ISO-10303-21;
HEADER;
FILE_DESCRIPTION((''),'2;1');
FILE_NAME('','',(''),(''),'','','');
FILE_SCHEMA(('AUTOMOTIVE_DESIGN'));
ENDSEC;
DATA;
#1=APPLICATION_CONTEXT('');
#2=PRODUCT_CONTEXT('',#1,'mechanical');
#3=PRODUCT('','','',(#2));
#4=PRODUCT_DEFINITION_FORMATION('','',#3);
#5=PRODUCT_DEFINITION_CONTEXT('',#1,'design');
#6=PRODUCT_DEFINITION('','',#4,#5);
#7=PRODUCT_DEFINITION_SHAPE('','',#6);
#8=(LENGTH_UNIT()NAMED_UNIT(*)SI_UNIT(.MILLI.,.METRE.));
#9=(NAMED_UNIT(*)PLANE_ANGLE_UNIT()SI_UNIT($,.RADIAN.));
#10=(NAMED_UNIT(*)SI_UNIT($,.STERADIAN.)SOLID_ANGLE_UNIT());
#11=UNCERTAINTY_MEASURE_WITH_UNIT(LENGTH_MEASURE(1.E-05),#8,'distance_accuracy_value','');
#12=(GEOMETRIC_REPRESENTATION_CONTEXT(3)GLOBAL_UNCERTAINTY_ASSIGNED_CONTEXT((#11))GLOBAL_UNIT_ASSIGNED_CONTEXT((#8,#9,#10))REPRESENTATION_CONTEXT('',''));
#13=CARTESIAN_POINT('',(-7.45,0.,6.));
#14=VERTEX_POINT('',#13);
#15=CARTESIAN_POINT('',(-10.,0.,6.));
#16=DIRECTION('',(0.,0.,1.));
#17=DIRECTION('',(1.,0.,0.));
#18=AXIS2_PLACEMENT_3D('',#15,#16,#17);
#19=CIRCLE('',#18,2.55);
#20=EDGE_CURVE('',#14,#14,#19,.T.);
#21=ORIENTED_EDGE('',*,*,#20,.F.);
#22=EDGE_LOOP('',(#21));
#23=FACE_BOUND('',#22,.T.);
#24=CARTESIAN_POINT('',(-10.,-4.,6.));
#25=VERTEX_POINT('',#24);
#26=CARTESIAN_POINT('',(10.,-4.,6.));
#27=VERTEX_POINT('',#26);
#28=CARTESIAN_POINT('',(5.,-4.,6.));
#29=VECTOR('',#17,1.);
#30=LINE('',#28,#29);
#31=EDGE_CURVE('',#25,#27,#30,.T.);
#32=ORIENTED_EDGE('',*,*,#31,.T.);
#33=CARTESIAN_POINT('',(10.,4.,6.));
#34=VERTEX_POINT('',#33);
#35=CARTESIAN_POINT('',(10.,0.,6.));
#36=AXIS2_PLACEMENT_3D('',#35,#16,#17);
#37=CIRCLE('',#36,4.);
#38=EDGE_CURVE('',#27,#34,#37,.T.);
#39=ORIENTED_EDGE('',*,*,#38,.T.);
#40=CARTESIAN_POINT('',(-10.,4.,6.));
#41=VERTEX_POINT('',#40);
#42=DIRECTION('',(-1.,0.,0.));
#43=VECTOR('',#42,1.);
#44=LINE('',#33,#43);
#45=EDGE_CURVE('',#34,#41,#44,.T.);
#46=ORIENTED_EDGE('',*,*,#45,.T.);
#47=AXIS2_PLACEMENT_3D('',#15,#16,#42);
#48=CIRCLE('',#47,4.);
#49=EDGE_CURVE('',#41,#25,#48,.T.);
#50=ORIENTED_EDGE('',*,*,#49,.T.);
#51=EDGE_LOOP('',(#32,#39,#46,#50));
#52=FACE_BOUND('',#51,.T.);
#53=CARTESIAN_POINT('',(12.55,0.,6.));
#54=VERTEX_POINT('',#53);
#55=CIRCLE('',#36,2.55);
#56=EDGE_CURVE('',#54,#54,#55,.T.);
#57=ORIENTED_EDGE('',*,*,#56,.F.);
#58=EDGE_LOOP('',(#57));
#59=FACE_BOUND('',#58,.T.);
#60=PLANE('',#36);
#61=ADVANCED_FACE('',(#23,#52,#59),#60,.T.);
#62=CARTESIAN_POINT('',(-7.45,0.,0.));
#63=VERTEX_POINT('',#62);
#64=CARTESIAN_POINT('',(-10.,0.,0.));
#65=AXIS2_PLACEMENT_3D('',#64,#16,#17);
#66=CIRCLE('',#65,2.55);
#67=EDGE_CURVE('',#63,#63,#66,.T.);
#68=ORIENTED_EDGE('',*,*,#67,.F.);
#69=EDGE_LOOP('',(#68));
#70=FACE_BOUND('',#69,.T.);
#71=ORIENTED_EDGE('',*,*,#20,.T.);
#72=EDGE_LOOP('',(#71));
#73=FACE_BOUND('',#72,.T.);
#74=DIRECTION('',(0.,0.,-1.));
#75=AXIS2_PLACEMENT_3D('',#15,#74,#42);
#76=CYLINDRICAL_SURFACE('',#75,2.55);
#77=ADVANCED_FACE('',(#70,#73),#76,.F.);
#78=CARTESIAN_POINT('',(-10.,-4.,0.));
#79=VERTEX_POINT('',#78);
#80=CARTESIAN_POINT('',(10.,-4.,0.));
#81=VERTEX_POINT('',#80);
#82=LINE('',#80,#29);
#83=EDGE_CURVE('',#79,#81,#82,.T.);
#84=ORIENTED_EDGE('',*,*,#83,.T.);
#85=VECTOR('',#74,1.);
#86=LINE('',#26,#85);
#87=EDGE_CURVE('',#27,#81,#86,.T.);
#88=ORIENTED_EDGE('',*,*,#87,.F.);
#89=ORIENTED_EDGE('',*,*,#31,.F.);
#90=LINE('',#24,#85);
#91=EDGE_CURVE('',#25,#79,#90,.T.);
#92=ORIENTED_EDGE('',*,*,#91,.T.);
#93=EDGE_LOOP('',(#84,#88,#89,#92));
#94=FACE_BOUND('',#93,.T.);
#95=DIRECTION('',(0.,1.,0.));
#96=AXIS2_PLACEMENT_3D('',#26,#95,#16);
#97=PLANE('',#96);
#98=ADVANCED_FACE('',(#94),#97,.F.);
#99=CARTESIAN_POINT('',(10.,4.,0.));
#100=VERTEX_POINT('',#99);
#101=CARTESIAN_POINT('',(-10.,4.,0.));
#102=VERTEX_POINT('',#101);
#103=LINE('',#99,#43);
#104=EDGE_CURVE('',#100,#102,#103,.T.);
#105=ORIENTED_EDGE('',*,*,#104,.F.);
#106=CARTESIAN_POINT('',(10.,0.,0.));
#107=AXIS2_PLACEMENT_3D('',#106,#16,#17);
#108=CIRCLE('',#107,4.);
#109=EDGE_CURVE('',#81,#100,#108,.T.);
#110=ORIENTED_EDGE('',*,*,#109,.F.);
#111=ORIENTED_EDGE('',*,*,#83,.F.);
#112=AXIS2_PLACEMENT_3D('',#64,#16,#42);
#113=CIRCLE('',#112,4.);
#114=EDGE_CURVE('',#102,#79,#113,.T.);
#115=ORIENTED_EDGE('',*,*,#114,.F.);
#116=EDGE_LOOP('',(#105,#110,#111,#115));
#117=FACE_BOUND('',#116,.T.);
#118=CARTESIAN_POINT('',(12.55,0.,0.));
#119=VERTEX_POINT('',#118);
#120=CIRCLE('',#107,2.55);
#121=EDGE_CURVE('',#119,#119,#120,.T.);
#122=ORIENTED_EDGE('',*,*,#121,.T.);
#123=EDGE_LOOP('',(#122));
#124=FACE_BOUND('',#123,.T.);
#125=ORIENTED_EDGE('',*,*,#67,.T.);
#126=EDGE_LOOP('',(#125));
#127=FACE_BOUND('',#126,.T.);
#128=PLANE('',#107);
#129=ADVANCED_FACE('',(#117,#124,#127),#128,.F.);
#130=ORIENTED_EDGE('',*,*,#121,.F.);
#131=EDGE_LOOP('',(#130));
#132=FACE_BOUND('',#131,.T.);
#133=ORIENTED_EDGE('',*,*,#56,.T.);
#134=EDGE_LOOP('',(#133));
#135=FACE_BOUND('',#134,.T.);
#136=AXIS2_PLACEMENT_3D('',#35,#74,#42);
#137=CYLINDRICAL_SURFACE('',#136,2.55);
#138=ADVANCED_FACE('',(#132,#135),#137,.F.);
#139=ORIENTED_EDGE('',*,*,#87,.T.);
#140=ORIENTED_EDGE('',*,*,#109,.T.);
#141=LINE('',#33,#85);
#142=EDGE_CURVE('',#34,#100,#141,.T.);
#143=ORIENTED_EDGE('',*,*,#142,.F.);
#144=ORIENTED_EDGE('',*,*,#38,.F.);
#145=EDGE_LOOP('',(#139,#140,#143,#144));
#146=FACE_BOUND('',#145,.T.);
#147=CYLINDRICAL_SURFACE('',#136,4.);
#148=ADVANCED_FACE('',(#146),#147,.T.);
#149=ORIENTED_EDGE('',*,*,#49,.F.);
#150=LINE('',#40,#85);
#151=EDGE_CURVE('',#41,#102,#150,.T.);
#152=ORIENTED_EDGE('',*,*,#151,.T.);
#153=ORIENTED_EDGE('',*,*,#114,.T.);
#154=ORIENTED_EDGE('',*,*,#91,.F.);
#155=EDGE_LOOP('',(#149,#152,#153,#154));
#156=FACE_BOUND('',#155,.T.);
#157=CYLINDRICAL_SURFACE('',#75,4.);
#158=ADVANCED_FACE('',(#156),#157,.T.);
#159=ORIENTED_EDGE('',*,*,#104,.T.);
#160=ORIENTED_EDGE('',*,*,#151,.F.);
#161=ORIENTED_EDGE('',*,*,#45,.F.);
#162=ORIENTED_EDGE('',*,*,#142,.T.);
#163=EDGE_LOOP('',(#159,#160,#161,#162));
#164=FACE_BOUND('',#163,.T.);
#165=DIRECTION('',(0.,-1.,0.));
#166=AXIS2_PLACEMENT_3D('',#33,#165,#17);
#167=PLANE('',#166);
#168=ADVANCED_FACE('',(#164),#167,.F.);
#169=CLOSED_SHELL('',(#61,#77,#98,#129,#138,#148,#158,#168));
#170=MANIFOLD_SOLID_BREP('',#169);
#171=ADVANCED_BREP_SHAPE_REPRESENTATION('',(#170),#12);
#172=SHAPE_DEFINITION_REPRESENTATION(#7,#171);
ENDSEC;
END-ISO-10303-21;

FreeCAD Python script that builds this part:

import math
import FreeCAD as App
import Part
import Sketcher
Q = App.Units.Quantity

doc = App.newDocument("Part")
body = doc.addObject("PartDesign::Body", "Body")

sketch1 = doc.addObject("Sketcher::SketchObject", "Sketch")
body.addObject(sketch1)
sketch1.AttachmentSupport = (doc.XY_Plane, [""])
sketch1.MapMode = "FlatFace"
sketch1.addGeometry([
    Part.LineSegment(App.Vector(-10, -4, 0), App.Vector(10, -4, 0)),
    Part.ArcOfCircle(Part.Circle(App.Vector(10, 0, 0), App.Vector(0, 0, 1), 4), math.radians(-90), math.radians(90)),
    Part.LineSegment(App.Vector(10, 4, 0), App.Vector(-10, 4, 0)),
    Part.ArcOfCircle(Part.Circle(App.Vector(-10, 0, 0), App.Vector(0, 0, 1), 4), math.radians(90), math.radians(270)),
    Part.Circle(App.Vector(10, 0, 0), App.Vector(0, 0, 1), 2.55),
    Part.Circle(App.Vector(-10, 0, 0), App.Vector(0, 0, 1), 2.55),
], False)
sketch1.addConstraint([
    Sketcher.Constraint("Tangent", 0, 2, 1, 1),
    Sketcher.Constraint("Tangent", 1, 2, 2, 1),
    Sketcher.Constraint("Tangent", 2, 2, 3, 1),
    Sketcher.Constraint("Tangent", 3, 2, 0, 1),
    Sketcher.Constraint("Horizontal", 0),
    Sketcher.Constraint("Horizontal", 2),
    Sketcher.Constraint("Coincident", 4, 3, 1, 3),
    Sketcher.Constraint("Coincident", 5, 3, 3, 3),
    Sketcher.Constraint("Equal", 4, 5),
    Sketcher.Constraint("Symmetric", 1, 3, 3, 3, -1, 1),
    Sketcher.Constraint("Radius", 1, Q("4 mm")),
    Sketcher.Constraint("Diameter", 4, Q("5.1 mm")),
    Sketcher.Constraint("DistanceX", 0, 1, 0, 2, Q("20 mm")),
])
pad1 = doc.addObject("PartDesign::Pad", "Pad")
body.addObject(pad1)
pad1.Profile = sketch1
pad1.Length = 6

doc.recompute()
